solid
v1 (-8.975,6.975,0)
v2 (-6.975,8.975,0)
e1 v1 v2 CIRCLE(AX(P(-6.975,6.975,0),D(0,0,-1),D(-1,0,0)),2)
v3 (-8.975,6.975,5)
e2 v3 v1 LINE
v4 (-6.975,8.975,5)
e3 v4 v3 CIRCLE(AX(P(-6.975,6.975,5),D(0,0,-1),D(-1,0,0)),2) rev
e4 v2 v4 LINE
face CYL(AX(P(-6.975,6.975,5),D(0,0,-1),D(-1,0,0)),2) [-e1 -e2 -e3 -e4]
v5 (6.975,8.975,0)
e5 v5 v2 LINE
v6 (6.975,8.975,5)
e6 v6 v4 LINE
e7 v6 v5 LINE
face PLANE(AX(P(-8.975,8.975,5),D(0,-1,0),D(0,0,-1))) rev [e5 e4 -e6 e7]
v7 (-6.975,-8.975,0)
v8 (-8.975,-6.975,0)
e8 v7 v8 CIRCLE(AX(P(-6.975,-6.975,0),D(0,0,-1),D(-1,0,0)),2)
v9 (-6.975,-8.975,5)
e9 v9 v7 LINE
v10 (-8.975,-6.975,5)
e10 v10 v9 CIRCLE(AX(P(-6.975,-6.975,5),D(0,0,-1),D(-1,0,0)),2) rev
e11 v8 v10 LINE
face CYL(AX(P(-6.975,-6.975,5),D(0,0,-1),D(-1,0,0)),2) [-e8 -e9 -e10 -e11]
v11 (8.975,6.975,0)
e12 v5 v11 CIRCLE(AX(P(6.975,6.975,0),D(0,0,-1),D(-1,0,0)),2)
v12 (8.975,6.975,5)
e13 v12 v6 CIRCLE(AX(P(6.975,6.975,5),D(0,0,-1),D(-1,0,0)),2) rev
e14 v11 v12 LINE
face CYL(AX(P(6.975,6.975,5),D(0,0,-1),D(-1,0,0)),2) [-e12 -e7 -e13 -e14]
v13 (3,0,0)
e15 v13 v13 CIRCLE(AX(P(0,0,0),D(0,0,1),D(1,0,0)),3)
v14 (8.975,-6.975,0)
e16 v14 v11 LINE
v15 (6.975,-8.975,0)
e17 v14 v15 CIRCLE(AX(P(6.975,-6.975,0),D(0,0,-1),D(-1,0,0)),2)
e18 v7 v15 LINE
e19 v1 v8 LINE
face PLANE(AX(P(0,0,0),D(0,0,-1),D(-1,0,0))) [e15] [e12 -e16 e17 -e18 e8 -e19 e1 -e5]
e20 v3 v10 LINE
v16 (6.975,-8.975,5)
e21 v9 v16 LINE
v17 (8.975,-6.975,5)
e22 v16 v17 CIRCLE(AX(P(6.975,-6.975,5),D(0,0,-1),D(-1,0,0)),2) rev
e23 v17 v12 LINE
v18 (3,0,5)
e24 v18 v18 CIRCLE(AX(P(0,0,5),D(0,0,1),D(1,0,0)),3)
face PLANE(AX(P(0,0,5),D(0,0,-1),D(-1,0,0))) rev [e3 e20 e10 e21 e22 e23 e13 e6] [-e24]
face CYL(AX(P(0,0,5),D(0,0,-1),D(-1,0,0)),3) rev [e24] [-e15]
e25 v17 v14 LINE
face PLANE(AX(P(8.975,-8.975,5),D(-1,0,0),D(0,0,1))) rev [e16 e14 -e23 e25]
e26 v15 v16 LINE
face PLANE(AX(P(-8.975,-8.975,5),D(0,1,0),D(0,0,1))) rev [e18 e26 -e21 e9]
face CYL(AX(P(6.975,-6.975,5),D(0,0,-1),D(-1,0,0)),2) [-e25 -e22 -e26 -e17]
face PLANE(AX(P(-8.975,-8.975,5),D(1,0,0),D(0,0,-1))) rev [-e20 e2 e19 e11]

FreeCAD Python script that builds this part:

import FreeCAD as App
import Part
import Sketcher
from FreeCAD import Vector
Q = App.Units.Quantity


def edges_at(feature, points):
    """Names of the edges that pass closest to the given points."""
    edges = feature.Shape.Edges
    near = lambda p: min(range(len(edges)), key=lambda i: edges[i].distToShape(Part.Vertex(*p))[0])
    return sorted({f"Edge{near(p) + 1}" for p in points})

doc = App.newDocument("Part")
body = doc.addObject("PartDesign::Body", "Body")

# Sketch on XY plane
sketch1 = body.newObject("Sketcher::SketchObject", "Sketch")
sketch1.AttachmentSupport = (doc.getObject("XY_Plane"), [""])
sketch1.MapMode = "FlatFace"
sketch1.addGeometry(Part.LineSegment(Vector(-8.975, 8.975, 0), Vector(-8.975, -8.975, 0)), False)
sketch1.addGeometry(Part.LineSegment(Vector(-8.975, -8.975, 0), Vector(8.975, -8.975, 0)), False)
sketch1.addGeometry(Part.LineSegment(Vector(8.975, -8.975, 0), Vector(8.975, 8.975, 0)), False)
sketch1.addGeometry(Part.LineSegment(Vector(8.975, 8.975, 0), Vector(-8.975, 8.975, 0)), False)
sketch1.addGeometry(Part.Circle(Vector(0, 0, 0), Vector(0, 0, 1), 3), False)
sketch1.addConstraint(Sketcher.Constraint("Coincident", 0, 2, 1, 1))
sketch1.addConstraint(Sketcher.Constraint("Coincident", 1, 2, 2, 1))
sketch1.addConstraint(Sketcher.Constraint("Coincident", 2, 2, 3, 1))
sketch1.addConstraint(Sketcher.Constraint("Coincident", 3, 2, 0, 1))
sketch1.addConstraint(Sketcher.Constraint("Vertical", 0))
sketch1.addConstraint(Sketcher.Constraint("Horizontal", 1))
sketch1.addConstraint(Sketcher.Constraint("Vertical", 2))
sketch1.addConstraint(Sketcher.Constraint("Horizontal", 3))
sketch1.addConstraint(Sketcher.Constraint("Coincident", 4, 3, -1, 1))
sketch1.addConstraint(Sketcher.Constraint("Symmetric", 0, 2, 2, 2, -1, 1))
sketch1.addConstraint(Sketcher.Constraint("Equal", 3, 0))
sketch1.addConstraint(Sketcher.Constraint("Diameter", 4, Q("6 mm")))
sketch1.addConstraint(Sketcher.Constraint("DistanceX", 1, 1, 1, 2, Q("17.95 mm")))
pad1 = body.newObject("PartDesign::Pad", "Pad")
pad1.Profile = sketch1
pad1.Length = 5
doc.recompute()

fillet = body.newObject("PartDesign::Fillet", "Fillet")
fillet.Base = (pad1, edges_at(pad1, [
    (8.975, -8.975, 2.5),
    (-8.975, -8.975, 2.5),
    (-8.975, 8.975, 2.5),
    (8.975, 8.975, 2.5),
]))
fillet.Radius = 2

doc.recompute()
